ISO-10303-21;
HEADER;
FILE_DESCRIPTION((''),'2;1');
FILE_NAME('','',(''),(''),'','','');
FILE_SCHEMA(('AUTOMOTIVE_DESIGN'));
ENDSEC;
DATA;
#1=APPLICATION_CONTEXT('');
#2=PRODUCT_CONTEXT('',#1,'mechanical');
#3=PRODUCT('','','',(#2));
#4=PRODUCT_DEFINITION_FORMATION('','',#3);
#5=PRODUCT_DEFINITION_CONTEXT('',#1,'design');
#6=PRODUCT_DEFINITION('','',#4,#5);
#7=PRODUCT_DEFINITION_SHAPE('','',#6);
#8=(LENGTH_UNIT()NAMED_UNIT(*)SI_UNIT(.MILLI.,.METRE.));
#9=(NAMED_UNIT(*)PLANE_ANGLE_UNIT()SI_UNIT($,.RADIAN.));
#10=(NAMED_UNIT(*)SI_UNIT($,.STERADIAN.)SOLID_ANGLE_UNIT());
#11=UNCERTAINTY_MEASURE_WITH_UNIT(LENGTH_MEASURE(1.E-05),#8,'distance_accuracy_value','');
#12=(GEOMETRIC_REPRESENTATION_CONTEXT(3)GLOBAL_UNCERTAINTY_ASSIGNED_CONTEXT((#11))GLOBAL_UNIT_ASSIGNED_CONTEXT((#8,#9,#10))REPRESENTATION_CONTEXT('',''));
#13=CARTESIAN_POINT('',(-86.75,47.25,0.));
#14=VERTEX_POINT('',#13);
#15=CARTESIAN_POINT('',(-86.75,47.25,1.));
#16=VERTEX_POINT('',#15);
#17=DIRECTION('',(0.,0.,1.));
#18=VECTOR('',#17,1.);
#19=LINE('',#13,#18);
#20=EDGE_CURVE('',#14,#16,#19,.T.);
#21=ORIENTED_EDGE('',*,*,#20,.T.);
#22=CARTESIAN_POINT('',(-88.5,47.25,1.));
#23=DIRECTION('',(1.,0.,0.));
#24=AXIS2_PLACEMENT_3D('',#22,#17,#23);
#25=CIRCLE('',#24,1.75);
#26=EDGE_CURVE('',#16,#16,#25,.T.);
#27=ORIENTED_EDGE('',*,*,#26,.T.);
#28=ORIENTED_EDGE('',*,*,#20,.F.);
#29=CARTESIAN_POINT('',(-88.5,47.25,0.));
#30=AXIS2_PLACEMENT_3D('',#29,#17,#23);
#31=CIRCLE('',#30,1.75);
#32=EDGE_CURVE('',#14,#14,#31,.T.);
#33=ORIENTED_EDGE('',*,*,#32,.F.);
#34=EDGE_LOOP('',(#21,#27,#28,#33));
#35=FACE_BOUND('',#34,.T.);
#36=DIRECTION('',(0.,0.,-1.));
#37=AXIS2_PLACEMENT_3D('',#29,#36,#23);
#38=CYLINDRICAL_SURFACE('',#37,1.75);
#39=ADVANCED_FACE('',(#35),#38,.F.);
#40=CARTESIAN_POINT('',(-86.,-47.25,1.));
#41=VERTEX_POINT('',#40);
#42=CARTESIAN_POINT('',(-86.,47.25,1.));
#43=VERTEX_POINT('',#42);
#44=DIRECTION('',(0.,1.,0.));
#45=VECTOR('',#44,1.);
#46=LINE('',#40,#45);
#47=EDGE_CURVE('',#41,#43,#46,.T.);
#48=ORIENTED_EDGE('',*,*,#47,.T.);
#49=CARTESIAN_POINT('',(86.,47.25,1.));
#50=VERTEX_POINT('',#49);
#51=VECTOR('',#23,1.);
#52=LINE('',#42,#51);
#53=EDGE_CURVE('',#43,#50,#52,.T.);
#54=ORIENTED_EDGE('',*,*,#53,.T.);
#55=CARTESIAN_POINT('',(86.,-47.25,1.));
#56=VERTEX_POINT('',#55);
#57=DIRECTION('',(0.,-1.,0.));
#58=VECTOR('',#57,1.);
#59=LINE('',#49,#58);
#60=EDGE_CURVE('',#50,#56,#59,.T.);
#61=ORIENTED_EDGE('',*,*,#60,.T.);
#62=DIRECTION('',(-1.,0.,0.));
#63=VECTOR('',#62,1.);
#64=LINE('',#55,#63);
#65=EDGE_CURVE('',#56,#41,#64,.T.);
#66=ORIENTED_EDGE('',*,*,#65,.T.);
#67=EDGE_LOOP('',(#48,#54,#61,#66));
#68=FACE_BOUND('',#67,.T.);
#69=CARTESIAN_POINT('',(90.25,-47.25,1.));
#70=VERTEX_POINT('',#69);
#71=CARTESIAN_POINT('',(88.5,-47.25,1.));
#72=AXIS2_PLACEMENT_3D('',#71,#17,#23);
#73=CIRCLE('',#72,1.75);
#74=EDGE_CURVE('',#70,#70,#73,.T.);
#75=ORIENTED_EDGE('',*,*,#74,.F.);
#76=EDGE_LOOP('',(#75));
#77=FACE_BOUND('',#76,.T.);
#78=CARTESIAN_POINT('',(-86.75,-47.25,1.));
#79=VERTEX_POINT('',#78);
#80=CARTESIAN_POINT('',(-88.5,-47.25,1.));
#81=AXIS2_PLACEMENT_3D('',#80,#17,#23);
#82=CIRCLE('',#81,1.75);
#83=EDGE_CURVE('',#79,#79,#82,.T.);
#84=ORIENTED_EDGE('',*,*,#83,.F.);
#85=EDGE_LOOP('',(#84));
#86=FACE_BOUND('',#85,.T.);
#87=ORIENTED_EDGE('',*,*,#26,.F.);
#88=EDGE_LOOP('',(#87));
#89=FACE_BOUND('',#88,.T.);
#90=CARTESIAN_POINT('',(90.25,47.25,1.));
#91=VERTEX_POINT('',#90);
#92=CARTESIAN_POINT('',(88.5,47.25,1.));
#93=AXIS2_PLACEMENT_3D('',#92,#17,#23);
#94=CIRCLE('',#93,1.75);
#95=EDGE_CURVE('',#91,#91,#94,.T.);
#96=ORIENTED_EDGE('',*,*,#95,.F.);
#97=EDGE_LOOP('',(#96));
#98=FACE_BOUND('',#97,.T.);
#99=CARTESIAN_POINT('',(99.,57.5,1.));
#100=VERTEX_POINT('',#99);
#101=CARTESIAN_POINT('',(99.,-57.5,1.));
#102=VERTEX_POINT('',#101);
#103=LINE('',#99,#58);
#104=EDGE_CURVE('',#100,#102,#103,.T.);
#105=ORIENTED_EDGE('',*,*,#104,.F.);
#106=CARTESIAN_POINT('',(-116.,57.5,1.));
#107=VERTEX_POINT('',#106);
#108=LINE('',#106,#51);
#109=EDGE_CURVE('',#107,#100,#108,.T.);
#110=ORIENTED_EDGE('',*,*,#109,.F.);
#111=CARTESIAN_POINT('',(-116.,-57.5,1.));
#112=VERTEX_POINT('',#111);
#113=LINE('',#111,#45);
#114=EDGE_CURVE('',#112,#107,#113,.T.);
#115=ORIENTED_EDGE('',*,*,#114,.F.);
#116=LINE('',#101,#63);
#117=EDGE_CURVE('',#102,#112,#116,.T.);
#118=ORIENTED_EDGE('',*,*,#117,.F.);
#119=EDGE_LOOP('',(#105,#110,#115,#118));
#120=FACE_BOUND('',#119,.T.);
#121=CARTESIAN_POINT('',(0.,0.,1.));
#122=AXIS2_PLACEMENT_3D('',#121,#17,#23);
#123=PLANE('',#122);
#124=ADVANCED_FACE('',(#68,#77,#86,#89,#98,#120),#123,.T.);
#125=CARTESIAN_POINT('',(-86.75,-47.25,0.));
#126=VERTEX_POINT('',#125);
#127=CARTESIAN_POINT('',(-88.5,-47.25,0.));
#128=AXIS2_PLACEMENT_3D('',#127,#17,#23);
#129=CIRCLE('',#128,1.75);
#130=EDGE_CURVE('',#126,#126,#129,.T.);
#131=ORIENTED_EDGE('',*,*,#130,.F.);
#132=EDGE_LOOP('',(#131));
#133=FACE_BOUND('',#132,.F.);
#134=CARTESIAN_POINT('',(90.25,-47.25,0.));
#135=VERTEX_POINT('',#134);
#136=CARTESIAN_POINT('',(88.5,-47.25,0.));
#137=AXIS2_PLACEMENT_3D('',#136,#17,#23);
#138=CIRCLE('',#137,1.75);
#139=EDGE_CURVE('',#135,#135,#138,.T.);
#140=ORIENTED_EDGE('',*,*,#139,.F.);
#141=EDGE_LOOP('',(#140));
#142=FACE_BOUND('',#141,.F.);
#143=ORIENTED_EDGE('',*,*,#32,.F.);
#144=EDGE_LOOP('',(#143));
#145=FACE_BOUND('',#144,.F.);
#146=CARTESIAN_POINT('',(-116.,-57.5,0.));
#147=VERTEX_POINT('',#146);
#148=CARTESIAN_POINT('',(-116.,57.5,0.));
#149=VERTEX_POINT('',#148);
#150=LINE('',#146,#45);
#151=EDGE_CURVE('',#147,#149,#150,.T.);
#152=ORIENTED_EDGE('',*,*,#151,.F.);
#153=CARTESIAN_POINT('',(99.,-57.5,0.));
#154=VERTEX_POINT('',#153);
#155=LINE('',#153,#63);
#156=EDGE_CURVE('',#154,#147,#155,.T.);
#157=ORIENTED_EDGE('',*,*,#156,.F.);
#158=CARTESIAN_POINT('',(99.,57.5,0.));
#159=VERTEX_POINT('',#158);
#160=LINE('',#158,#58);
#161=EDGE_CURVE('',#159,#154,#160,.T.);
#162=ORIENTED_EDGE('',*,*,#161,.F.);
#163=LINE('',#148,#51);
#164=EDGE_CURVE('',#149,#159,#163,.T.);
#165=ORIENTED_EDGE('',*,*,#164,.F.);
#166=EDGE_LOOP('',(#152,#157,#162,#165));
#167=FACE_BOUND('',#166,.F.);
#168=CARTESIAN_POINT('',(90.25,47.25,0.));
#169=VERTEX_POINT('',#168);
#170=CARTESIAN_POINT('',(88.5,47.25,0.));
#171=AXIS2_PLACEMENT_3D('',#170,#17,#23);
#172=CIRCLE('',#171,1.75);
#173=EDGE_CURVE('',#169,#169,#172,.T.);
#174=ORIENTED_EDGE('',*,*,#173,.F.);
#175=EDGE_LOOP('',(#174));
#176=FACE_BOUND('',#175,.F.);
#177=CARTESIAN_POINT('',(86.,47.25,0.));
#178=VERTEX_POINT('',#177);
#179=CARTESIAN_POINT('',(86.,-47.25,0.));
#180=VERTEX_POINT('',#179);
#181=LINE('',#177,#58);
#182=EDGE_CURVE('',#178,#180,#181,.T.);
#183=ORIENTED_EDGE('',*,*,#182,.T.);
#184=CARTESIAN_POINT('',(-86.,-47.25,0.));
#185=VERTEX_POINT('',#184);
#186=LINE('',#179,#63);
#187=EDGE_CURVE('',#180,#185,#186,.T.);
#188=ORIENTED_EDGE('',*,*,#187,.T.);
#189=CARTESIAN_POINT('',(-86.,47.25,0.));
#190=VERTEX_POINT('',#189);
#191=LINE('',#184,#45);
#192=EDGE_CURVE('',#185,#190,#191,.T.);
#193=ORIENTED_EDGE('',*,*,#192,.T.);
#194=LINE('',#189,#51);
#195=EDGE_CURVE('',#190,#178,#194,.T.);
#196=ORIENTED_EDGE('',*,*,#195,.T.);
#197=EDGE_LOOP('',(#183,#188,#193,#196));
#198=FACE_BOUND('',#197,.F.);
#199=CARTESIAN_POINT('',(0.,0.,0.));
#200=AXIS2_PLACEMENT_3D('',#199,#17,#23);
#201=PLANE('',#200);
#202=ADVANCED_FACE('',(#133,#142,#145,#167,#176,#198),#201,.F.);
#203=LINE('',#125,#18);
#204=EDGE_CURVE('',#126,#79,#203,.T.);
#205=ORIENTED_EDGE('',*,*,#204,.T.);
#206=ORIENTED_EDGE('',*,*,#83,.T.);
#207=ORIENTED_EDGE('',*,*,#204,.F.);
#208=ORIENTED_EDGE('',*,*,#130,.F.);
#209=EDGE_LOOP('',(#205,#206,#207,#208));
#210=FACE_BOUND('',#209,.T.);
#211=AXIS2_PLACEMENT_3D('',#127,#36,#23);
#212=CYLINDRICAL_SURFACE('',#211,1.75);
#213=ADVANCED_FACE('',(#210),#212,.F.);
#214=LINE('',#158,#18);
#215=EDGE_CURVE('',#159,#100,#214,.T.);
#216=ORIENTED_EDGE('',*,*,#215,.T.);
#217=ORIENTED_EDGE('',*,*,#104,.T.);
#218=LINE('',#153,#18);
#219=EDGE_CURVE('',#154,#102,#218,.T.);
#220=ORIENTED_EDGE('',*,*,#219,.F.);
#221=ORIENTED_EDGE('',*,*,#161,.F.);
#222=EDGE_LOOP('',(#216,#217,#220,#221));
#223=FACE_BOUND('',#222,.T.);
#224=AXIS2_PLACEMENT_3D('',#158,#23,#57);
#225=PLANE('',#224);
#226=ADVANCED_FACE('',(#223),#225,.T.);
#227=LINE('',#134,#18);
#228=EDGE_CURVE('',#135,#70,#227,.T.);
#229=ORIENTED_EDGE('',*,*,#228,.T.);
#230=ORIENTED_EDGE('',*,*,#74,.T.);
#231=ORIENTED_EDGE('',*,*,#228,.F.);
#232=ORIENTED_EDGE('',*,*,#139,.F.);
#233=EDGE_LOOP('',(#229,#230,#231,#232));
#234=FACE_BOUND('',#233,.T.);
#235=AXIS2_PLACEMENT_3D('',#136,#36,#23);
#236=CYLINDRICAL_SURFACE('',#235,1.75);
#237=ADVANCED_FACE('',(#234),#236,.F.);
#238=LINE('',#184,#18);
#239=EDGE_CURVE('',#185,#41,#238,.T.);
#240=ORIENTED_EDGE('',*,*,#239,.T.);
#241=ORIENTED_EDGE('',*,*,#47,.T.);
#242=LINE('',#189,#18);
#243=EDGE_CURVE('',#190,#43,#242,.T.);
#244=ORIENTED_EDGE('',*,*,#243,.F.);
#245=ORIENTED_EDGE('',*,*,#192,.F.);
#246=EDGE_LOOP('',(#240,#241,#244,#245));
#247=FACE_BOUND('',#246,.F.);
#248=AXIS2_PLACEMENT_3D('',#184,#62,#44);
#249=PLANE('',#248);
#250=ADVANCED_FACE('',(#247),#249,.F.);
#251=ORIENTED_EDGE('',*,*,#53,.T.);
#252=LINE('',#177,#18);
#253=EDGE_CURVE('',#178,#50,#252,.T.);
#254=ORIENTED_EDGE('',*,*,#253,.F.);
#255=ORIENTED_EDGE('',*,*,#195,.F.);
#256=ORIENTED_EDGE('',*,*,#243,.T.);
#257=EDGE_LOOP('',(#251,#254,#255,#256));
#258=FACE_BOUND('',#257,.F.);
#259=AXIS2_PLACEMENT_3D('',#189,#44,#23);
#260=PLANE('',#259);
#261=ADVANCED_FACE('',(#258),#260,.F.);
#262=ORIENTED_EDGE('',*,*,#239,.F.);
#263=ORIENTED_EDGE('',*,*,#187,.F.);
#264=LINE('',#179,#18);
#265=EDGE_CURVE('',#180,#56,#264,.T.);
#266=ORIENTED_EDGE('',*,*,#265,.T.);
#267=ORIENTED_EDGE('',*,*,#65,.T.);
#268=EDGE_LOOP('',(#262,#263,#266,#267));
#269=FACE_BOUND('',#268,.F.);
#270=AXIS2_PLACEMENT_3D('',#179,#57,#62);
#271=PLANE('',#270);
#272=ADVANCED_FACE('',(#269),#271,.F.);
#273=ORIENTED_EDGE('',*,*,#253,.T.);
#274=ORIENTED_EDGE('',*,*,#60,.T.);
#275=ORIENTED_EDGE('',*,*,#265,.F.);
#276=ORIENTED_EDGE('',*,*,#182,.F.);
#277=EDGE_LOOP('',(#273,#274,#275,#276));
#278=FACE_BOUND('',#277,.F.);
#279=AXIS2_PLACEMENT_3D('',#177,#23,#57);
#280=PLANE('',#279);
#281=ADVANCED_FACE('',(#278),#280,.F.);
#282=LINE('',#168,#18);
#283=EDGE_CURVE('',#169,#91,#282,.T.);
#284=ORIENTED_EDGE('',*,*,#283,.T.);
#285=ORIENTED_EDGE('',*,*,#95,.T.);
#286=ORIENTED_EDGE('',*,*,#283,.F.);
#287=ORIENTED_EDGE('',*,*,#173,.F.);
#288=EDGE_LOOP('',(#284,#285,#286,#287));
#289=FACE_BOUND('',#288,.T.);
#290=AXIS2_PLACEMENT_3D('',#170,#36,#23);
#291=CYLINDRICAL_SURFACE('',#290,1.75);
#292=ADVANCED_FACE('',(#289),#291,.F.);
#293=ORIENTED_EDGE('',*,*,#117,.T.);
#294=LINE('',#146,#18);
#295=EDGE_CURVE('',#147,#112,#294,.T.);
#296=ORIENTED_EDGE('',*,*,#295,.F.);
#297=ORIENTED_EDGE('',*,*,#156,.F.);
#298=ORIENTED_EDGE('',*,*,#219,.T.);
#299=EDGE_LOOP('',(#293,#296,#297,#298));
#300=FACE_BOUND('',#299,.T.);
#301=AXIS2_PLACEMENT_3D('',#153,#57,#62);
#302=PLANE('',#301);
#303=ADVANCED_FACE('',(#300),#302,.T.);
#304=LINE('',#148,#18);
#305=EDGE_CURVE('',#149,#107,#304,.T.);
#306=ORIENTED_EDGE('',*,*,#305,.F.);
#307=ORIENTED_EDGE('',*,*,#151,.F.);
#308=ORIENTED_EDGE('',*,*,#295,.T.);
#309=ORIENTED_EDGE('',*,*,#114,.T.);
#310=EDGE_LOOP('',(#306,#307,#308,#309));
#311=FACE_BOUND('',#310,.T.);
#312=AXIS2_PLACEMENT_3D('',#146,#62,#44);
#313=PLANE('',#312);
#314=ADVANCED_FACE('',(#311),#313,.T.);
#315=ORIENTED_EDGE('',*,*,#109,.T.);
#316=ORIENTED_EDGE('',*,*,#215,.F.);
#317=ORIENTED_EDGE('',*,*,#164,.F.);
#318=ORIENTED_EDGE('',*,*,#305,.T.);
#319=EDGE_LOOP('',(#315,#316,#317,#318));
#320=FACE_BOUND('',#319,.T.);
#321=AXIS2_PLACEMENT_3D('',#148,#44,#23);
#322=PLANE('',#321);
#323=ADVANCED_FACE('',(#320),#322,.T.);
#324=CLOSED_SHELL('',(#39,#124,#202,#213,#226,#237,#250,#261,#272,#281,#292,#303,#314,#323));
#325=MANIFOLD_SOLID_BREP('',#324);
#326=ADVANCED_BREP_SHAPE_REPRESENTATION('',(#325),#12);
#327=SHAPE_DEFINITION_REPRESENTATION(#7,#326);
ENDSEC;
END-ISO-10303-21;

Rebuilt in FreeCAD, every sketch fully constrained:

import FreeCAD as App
import Part
import Sketcher


def add_polygon(sketch, points):
    """Adds a closed chain of lines whose ends are joined by coincident constraints."""
    first, n = sketch.GeometryCount, len(points)
    for a, b in zip(points, points[1:] + points[:1]):
        sketch.addGeometry(Part.LineSegment(App.Vector(*a, 0), App.Vector(*b, 0)), False)
    for i in range(n):
        sketch.addConstraint(Sketcher.Constraint("Coincident", first + i, 2, first + (i + 1) % n, 1))

doc = App.newDocument("Part")
body = doc.addObject("PartDesign::Body", "Body")

# Sketch on XY plane
sketch1 = body.newObject("Sketcher::SketchObject", "Sketch")
sketch1.AttachmentSupport = (doc.getObject("XY_Plane"), [""])
sketch1.MapMode = "FlatFace"
add_polygon(sketch1, [(-116, -57.5), (99, -57.5), (99, 57.5), (-116, 57.5)])  # lines 0-3
sketch1.addGeometry(Part.Circle(App.Vector(88.5, -47.25, 0), App.Vector(0, 0, 1), 1.75), False)  # 4
add_polygon(sketch1, [(86, 47.25), (86, -47.25), (-86, -47.25), (-86, 47.25)])  # lines 5-8
sketch1.addGeometry(Part.Circle(App.Vector(-88.5, -47.25, 0), App.Vector(0, 0, 1), 1.75), False)  # 9
sketch1.addGeometry(Part.Circle(App.Vector(88.5, 47.25, 0), App.Vector(0, 0, 1), 1.75), False)  # 10
sketch1.addGeometry(Part.Circle(App.Vector(-88.5, 47.25, 0), App.Vector(0, 0, 1), 1.75), False)  # 11
sketch1.addConstraint([
    Sketcher.Constraint("Horizontal", 0),
    Sketcher.Constraint("Vertical", 1),
    Sketcher.Constraint("Horizontal", 2),
    Sketcher.Constraint("Vertical", 3),
    Sketcher.Constraint("Vertical", 5),
    Sketcher.Constraint("Horizontal", 6),
    Sketcher.Constraint("Vertical", 7),
    Sketcher.Constraint("Horizontal", 8),
    Sketcher.Constraint("Equal", 4, 9),
    Sketcher.Constraint("Equal", 9, 10),
    Sketcher.Constraint("Equal", 10, 11),
    Sketcher.Constraint("Symmetric", 9, 3, 10, 3, -1, 1),
    Sketcher.Constraint("Symmetric", 4, 3, 11, 3, -1, 1),
    Sketcher.Constraint("Symmetric", 5, 2, 7, 2, -1, 1),
    Sketcher.Constraint("Symmetric", 4, 3, 9, 3, -2),
    Sketcher.Constraint("Horizontal", 9, 3, 5, 2),
    Sketcher.Constraint("Diameter", 4, 3.5),
    Sketcher.Constraint("DistanceX", 0, 1, 0, 2, 215.0),
    Sketcher.Constraint("DistanceY", 1, 1, 1, 2, 115.0),
    Sketcher.Constraint("DistanceY", 5, 2, 5, 1, 94.5),
    Sketcher.Constraint("DistanceX", 9, 3, 4, 3, 177.0),
    Sketcher.Constraint("DistanceY", 0, 2, -1, 1, 57.5),
    Sketcher.Constraint("DistanceX", 2, 2, 11, 3, 27.5),
    Sketcher.Constraint("DistanceX", 6, 2, 6, 1, 172.0),
])
pad1 = body.newObject("PartDesign::Pad", "Pad")
pad1.Profile = sketch1
pad1.Length = 1

doc.recompute()
